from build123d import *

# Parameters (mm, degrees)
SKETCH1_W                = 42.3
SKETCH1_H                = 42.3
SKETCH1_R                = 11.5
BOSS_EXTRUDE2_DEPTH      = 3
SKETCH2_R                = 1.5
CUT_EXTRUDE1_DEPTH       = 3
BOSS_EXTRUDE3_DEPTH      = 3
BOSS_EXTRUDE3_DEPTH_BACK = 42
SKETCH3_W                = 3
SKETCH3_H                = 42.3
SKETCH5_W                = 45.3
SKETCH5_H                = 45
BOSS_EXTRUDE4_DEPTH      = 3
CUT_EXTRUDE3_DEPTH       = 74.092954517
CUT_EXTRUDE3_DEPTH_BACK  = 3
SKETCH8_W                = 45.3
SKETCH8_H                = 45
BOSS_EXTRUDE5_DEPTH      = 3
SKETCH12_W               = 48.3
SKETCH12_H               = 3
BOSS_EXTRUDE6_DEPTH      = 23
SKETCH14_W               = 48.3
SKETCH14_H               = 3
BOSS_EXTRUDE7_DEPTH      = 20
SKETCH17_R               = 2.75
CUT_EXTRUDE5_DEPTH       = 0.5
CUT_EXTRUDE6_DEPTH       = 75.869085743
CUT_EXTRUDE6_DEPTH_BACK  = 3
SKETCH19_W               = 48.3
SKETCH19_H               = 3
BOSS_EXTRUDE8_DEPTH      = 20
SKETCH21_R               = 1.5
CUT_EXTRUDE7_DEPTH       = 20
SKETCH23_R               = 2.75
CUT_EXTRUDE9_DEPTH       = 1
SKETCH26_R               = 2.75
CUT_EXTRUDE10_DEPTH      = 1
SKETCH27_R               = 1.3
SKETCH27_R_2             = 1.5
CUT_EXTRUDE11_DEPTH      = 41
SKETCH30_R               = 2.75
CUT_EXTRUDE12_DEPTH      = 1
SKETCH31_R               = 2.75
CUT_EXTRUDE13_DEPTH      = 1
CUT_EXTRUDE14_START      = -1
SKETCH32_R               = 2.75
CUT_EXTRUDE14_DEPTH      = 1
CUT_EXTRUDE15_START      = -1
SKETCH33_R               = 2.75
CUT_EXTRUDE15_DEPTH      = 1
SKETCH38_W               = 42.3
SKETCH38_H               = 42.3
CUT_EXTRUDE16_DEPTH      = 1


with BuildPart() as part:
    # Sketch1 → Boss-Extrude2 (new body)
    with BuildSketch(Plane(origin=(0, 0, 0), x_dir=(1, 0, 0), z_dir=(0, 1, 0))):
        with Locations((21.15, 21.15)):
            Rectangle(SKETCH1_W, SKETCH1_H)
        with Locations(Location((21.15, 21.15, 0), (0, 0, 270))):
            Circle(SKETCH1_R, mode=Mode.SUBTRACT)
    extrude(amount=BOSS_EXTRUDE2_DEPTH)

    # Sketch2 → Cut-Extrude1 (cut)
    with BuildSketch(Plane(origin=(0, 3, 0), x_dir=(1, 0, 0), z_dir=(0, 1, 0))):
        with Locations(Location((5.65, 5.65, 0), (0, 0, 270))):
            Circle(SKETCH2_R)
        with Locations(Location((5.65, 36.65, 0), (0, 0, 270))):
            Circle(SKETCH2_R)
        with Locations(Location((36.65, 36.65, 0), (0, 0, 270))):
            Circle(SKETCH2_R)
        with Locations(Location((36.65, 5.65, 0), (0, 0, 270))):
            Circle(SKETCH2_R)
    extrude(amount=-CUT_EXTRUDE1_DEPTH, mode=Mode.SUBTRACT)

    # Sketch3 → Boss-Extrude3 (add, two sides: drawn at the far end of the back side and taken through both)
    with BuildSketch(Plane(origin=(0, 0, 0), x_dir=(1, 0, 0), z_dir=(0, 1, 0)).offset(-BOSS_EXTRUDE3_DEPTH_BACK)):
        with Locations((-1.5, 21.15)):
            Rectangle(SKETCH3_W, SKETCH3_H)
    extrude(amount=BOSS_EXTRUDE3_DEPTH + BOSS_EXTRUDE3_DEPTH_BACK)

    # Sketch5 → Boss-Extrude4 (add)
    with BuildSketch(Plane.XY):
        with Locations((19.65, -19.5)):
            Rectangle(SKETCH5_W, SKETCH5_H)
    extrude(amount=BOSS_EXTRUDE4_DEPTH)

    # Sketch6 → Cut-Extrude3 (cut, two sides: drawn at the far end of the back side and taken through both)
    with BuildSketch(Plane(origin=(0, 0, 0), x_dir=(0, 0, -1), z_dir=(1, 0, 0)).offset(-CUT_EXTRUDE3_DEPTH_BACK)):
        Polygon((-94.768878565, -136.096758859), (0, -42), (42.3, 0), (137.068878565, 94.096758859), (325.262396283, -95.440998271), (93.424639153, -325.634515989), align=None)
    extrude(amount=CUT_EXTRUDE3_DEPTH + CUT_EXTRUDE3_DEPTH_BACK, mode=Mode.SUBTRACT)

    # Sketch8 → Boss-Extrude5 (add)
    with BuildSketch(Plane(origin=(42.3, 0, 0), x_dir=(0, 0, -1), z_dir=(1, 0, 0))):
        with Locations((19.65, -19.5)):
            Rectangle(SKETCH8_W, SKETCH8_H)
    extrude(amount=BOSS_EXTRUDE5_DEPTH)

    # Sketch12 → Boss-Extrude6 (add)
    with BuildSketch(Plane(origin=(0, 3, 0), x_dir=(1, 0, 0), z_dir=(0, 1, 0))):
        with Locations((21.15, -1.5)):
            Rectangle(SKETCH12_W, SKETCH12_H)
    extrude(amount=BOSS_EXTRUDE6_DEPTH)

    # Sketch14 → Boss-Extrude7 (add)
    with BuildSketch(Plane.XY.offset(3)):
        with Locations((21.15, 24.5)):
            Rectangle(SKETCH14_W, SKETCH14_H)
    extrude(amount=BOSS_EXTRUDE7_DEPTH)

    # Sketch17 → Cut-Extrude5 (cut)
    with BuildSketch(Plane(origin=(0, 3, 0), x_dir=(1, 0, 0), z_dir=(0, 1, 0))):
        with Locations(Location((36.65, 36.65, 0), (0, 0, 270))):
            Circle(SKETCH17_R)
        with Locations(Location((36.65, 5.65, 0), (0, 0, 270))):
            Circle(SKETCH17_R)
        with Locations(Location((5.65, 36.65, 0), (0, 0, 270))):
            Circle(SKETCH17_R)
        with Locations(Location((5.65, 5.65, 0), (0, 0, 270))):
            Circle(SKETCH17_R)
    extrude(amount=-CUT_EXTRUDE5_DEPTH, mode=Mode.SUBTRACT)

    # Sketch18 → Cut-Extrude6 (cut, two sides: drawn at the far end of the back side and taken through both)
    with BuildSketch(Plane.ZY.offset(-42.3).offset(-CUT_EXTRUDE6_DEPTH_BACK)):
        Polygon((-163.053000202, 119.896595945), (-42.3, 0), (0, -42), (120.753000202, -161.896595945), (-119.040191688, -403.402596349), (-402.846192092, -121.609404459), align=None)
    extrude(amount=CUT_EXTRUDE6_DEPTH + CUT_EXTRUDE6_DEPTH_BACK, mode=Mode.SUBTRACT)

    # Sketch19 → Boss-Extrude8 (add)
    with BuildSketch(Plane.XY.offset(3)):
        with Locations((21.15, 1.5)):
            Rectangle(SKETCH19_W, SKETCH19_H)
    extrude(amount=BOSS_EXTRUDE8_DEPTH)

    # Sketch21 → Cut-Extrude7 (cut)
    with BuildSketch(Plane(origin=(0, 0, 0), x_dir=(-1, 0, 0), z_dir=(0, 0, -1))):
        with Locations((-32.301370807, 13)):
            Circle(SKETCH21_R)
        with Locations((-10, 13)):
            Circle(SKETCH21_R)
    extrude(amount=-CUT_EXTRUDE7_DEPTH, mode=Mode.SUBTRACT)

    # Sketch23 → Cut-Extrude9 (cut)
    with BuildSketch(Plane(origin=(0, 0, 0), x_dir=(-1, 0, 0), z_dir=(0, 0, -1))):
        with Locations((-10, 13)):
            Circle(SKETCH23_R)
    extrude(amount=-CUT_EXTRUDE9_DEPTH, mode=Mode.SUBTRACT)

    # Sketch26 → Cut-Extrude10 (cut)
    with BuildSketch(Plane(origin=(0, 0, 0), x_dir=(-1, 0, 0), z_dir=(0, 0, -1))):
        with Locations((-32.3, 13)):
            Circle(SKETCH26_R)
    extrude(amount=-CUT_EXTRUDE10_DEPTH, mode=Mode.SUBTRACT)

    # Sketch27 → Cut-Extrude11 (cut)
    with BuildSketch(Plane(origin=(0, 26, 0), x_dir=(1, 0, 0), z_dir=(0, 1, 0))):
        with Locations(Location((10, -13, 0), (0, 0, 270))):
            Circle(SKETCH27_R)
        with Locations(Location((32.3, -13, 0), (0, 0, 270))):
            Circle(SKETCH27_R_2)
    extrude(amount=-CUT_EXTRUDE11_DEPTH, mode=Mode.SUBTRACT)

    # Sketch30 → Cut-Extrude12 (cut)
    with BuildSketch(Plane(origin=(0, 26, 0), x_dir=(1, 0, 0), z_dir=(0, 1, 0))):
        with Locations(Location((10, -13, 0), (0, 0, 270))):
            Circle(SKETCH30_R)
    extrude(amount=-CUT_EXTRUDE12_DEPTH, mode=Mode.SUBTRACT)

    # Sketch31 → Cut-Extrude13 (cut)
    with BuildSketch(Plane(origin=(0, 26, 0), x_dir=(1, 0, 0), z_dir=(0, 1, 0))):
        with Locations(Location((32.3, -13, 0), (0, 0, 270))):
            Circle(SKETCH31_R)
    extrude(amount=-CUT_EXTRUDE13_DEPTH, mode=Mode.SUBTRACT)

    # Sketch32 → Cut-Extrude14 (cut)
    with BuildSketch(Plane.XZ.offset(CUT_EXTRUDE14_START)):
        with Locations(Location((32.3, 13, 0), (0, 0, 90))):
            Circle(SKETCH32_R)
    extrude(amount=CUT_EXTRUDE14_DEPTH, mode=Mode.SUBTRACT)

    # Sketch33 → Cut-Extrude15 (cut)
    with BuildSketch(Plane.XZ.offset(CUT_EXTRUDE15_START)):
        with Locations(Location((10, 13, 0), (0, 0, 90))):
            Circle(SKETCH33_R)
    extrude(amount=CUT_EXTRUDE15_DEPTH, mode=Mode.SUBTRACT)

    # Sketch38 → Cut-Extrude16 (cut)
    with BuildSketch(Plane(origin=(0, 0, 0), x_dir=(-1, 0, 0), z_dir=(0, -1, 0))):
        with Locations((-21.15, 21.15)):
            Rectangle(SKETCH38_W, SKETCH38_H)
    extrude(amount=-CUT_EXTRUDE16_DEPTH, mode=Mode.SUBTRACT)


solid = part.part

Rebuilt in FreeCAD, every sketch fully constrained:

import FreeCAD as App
import Part
import Sketcher

V = App.Vector

doc = App.newDocument("Part")
body = doc.addObject("PartDesign::Body", "Body")

# Sketch on XZ plane
sketch1 = doc.addObject("Sketcher::SketchObject", "Sketch")
body.addObject(sketch1)
sketch1.AttachmentSupport = (doc.XZ_Plane, [""])
sketch1.MapMode = "FlatFace"
sketch1.addGeometry([
    Part.LineSegment(V(0, -42, 0), V(0, 0, 0)),  # 0
    Part.LineSegment(V(0, 0, 0), V(42, 0, 0)),  # 1
    Part.LineSegment(V(42, 0, 0), V(42, -42, 0)),  # 2
    Part.LineSegment(V(42, -42, 0), V(0, -42, 0)),  # 3
    Part.Circle(V(21, -21, 0), V(0, 0, 1), 12),  # 4
], False)
sketch1.addConstraint([
    Sketcher.Constraint("Coincident", 0, 2, 1, 1),
    Sketcher.Constraint("Coincident", 1, 2, 2, 1),
    Sketcher.Constraint("Coincident", 2, 2, 3, 1),
    Sketcher.Constraint("Coincident", 3, 2, 0, 1),
    Sketcher.Constraint("Vertical", 0),
    Sketcher.Constraint("Horizontal", 1),
    Sketcher.Constraint("Vertical", 2),
    Sketcher.Constraint("Horizontal", 3),
    Sketcher.Constraint("Coincident", 0, 2, -1, 1),
    Sketcher.Constraint("Equal", 3, 0),
    Sketcher.Constraint("Diameter", 4, 23.0),
    Sketcher.Constraint("DistanceX", 1, 1, 1, 2, 42.3),
    Sketcher.Constraint("DistanceX", -1, 1, 4, 3, 21.15),
    Sketcher.Constraint("DistanceY", 4, 3, -1, 1, 21.15),
])
pad1 = doc.addObject("PartDesign::Pad", "Pad")
body.addObject(pad1)
pad1.Profile = sketch1
pad1.Length = 3
pad1.Reversed = True

# Sketch on XZ plane
sketch2 = doc.addObject("Sketcher::SketchObject", "Sketch001")
body.addObject(sketch2)
sketch2.AttachmentSupport = (doc.XZ_Plane, [""])
sketch2.MapMode = "FlatFace"
sketch2.AttachmentOffset = App.Placement(V(0, 0, -3), App.Rotation())
sketch2.addGeometry([
    Part.Circle(V(5.7, -5.7, 0), V(0, 0, 1), 1.5),
    Part.Circle(V(5.7, -36.6, 0), V(0, 0, 1), 1.5),
    Part.Circle(V(36.6, -36.6, 0), V(0, 0, 1), 1.5),
    Part.Circle(V(36.6, -5.7, 0), V(0, 0, 1), 1.5),
], False)
sketch2.addConstraint([
    Sketcher.Constraint("Equal", 0, 1),
    Sketcher.Constraint("Equal", 1, 2),
    Sketcher.Constraint("Equal", 2, 3),
    Sketcher.Constraint("Horizontal", 1, 3, 2, 3),
    Sketcher.Constraint("Horizontal", 0, 3, 3, 3),
    Sketcher.Constraint("Vertical", 0, 3, 1, 3),
    Sketcher.Constraint("Vertical", 2, 3, 3, 3),
    Sketcher.Constraint("Diameter", 0, 3.0),
    Sketcher.Constraint("DistanceY", 1, 3, 0, 3, 31.0),
    Sketcher.Constraint("DistanceX", 1, 3, 2, 3, 31.0),
    Sketcher.Constraint("DistanceX", -1, 1, 0, 3, 5.65),
    Sketcher.Constraint("DistanceY", 0, 3, -1, 1, 5.65),
])
pocket1 = doc.addObject("PartDesign::Pocket", "Pocket")
body.addObject(pocket1)
pocket1.Profile = sketch2
pocket1.Length = 3
pocket1.Reversed = True

# Sketch on XZ plane
sketch3 = doc.addObject("Sketcher::SketchObject", "Sketch002")
body.addObject(sketch3)
sketch3.AttachmentSupport = (doc.XZ_Plane, [""])
sketch3.MapMode = "FlatFace"
sketch3.addGeometry([
    Part.LineSegment(V(-3, -42.3, 0), V(-3, 0, 0)),
    Part.LineSegment(V(-3, 0, 0), V(0, 0, 0)),
    Part.LineSegment(V(0, 0, 0), V(0, -42.3, 0)),
    Part.LineSegment(V(0, -42.3, 0), V(-3, -42.3, 0)),
], False)
sketch3.addConstraint([
    Sketcher.Constraint("Coincident", 0, 2, 1, 1),
    Sketcher.Constraint("Coincident", 1, 2, 2, 1),
    Sketcher.Constraint("Coincident", 2, 2, 3, 1),
    Sketcher.Constraint("Coincident", 3, 2, 0, 1),
    Sketcher.Constraint("Vertical", 0),
    Sketcher.Constraint("Horizontal", 1),
    Sketcher.Constraint("Vertical", 2),
    Sketcher.Constraint("Horizontal", 3),
    Sketcher.Constraint("Coincident", 1, 2, -1, 1),
    Sketcher.Constraint("DistanceX", 1, 1, 1, 2, 3.0),
    Sketcher.Constraint("DistanceY", 0, 1, 0, 2, 42.3),
])
pad2 = doc.addObject("PartDesign::Pad", "Pad001")
body.addObject(pad2)
pad2.Profile = sketch3
pad2.Type = "TwoLengths"
pad2.Length = 3
pad2.Length2 = 42
pad2.Reversed = True

# Sketch on XY plane
sketch4 = doc.addObject("Sketcher::SketchObject", "Sketch003")
body.addObject(sketch4)
sketch4.AttachmentSupport = (doc.XY_Plane, [""])
sketch4.MapMode = "FlatFace"
sketch4.addGeometry([
    Part.LineSegment(V(-3, 3, 0), V(-3, -42, 0)),
    Part.LineSegment(V(-3, -42, 0), V(42, -42, 0)),
    Part.LineSegment(V(42, -42, 0), V(42, 3, 0)),
    Part.LineSegment(V(42, 3, 0), V(-3, 3, 0)),
], False)
sketch4.addConstraint([
    Sketcher.Constraint("Coincident", 0, 2, 1, 1),
    Sketcher.Constraint("Coincident", 1, 2, 2, 1),
    Sketcher.Constraint("Coincident", 2, 2, 3, 1),
    Sketcher.Constraint("Coincident", 3, 2, 0, 1),
    Sketcher.Constraint("Vertical", 0),
    Sketcher.Constraint("Horizontal", 1),
    Sketcher.Constraint("Vertical", 2),
    Sketcher.Constraint("Horizontal", 3),
    Sketcher.Constraint("DistanceY", 0, 2, 0, 1, 45.0),
    Sketcher.Constraint("DistanceX", 1, 1, 1, 2, 45.3),
    Sketcher.Constraint("DistanceX", 0, 2, -1, 1, 3.0),
    Sketcher.Constraint("DistanceY", 0, 2, -1, 1, 42.0),
])
pad3 = doc.addObject("PartDesign::Pad", "Pad002")
body.addObject(pad3)
pad3.Profile = sketch4
pad3.Length = 3

# Sketch on YZ plane
sketch5 = doc.addObject("Sketcher::SketchObject", "Sketch004")
body.addObject(sketch5)
sketch5.AttachmentSupport = (doc.YZ_Plane, [""])
sketch5.MapMode = "FlatFace"
sketch5.addGeometry([
    Part.LineSegment(V(94, -137, 0), V(-136, 95, 0)),
    Part.LineSegment(V(-136, 95, 0), V(-326, -93, 0)),
    Part.LineSegment(V(-326, -93, 0), V(-95, -325, 0)),
    Part.LineSegment(V(-95, -325, 0), V(94, -137, 0)),
], False)
sketch5.addConstraint([
    Sketcher.Constraint("Coincident", 0, 2, 1, 1),
    Sketcher.Constraint("Coincident", 1, 2, 2, 1),
    Sketcher.Constraint("Coincident", 2, 2, 3, 1),
    Sketcher.Constraint("Coincident", 3, 2, 0, 1),
    Sketcher.Constraint("Perpendicular", 0, 1),
    Sketcher.Constraint("Perpendicular", 1, 2),
    Sketcher.Constraint("Perpendicular", 2, 3),
    Sketcher.Constraint("DistanceX", 2, 2, -1, 1, 95.440998),
    Sketcher.Constraint("DistanceX", 0, 2, -1, 1, 136.096759),
    Sketcher.Constraint("DistanceY", -1, 1, 0, 2, 94.768879),
    Sketcher.Constraint("DistanceY", 1, 2, -1, 1, 93.424639),
    Sketcher.Constraint("DistanceX", -1, 1, 3, 2, 94.096759),
])
pocket2 = doc.addObject("PartDesign::Pocket", "Pocket001")
body.addObject(pocket2)
pocket2.Profile = sketch5
pocket2.Type = "ThroughAll"
pocket2.Midplane = True

# Sketch on YZ plane
sketch6 = doc.addObject("Sketcher::SketchObject", "Sketch005")
body.addObject(sketch6)
sketch6.AttachmentSupport = (doc.YZ_Plane, [""])
sketch6.MapMode = "FlatFace"
sketch6.AttachmentOffset = App.Placement(V(0, 0, 42.3), App.Rotation())
sketch6.addGeometry([
    Part.LineSegment(V(3, 3, 0), V(-42, 3, 0)),
    Part.LineSegment(V(-42, 3, 0), V(-42, -42, 0)),
    Part.LineSegment(V(-42, -42, 0), V(3, -42, 0)),
    Part.LineSegment(V(3, -42, 0), V(3, 3, 0)),
], False)
sketch6.addConstraint([
    Sketcher.Constraint("Coincident", 0, 2, 1, 1),
    Sketcher.Constraint("Coincident", 1, 2, 2, 1),
    Sketcher.Constraint("Coincident", 2, 2, 3, 1),
    Sketcher.Constraint("Coincident", 3, 2, 0, 1),
    Sketcher.Constraint("Horizontal", 0),
    Sketcher.Constraint("Vertical", 1),
    Sketcher.Constraint("Horizontal", 2),
    Sketcher.Constraint("Vertical", 3),
    Sketcher.Constraint("DistanceX", 0, 2, 0, 1, 45.0),
    Sketcher.Constraint("DistanceY", 1, 2, 1, 1, 45.3),
    Sketcher.Constraint("DistanceX", 0, 2, -1, 1, 42.0),
    Sketcher.Constraint("DistanceY", -1, 1, 0, 2, 3.0),
])
pad4 = doc.addObject("PartDesign::Pad", "Pad003")
body.addObject(pad4)
pad4.Profile = sketch6
pad4.Length = 3

# Sketch on XZ plane
sketch7 = doc.addObject("Sketcher::SketchObject", "Sketch006")
body.addObject(sketch7)
sketch7.AttachmentSupport = (doc.XZ_Plane, [""])
sketch7.MapMode = "FlatFace"
sketch7.AttachmentOffset = App.Placement(V(0, 0, -3), App.Rotation())
sketch7.addGeometry([
    Part.LineSegment(V(-3, 0, 0), V(-3, 3, 0)),
    Part.LineSegment(V(-3, 3, 0), V(45.3, 3, 0)),
    Part.LineSegment(V(45.3, 3, 0), V(45.3, 0, 0)),
    Part.LineSegment(V(45.3, 0, 0), V(-3, 0, 0)),
], False)
sketch7.addConstraint([
    Sketcher.Constraint("Coincident", 0, 2, 1, 1),
    Sketcher.Constraint("Coincident", 1, 2, 2, 1),
    Sketcher.Constraint("Coincident", 2, 2, 3, 1),
    Sketcher.Constraint("Coincident", 3, 2, 0, 1),
    Sketcher.Constraint("Vertical", 0),
    Sketcher.Constraint("Horizontal", 1),
    Sketcher.Constraint("Vertical", 2),
    Sketcher.Constraint("Horizontal", 3),
    Sketcher.Constraint("PointOnObject", 2, 2, -1),
    Sketcher.Constraint("DistanceY", 0, 1, 0, 2, 3.0),
    Sketcher.Constraint("DistanceX", 1, 1, 1, 2, 48.3),
    Sketcher.Constraint("DistanceX", 0, 2, -1, 1, 3.0),
])
pad5 = doc.addObject("PartDesign::Pad", "Pad004")
body.addObject(pad5)
pad5.Profile = sketch7
pad5.Length = 23
pad5.Reversed = True

# Sketch on XY plane
sketch8 = doc.addObject("Sketcher::SketchObject", "Sketch007")
body.addObject(sketch8)
sketch8.AttachmentSupport = (doc.XY_Plane, [""])
sketch8.MapMode = "FlatFace"
sketch8.AttachmentOffset = App.Placement(V(0, 0, 3), App.Rotation())
sketch8.addGeometry([
    Part.LineSegment(V(-3, 26, 0), V(-3, 23, 0)),
    Part.LineSegment(V(-3, 23, 0), V(45.3, 23, 0)),
    Part.LineSegment(V(45.3, 23, 0), V(45.3, 26, 0)),
    Part.LineSegment(V(45.3, 26, 0), V(-3, 26, 0)),
], False)
sketch8.addConstraint([
    Sketcher.Constraint("Coincident", 0, 2, 1, 1),
    Sketcher.Constraint("Coincident", 1, 2, 2, 1),
    Sketcher.Constraint("Coincident", 2, 2, 3, 1),
    Sketcher.Constraint("Coincident", 3, 2, 0, 1),
    Sketcher.Constraint("Vertical", 0),
    Sketcher.Constraint("Horizontal", 1),
    Sketcher.Constraint("Vertical", 2),
    Sketcher.Constraint("Horizontal", 3),
    Sketcher.Constraint("DistanceY", 0, 2, 0, 1, 3.0),
    Sketcher.Constraint("DistanceX", 1, 1, 1, 2, 48.3),
    Sketcher.Constraint("DistanceX", 0, 2, -1, 1, 3.0),
    Sketcher.Constraint("DistanceY", -1, 1, 0, 2, 23.0),
])
pad6 = doc.addObject("PartDesign::Pad", "Pad005")
body.addObject(pad6)
pad6.Profile = sketch8
pad6.Length = 20

# Sketch on XZ plane
sketch9 = doc.addObject("Sketcher::SketchObject", "Sketch008")
body.addObject(sketch9)
sketch9.AttachmentSupport = (doc.XZ_Plane, [""])
sketch9.MapMode = "FlatFace"
sketch9.AttachmentOffset = App.Placement(V(0, 0, -3), App.Rotation())
sketch9.addGeometry([
    Part.Circle(V(36.6, -36.6, 0), V(0, 0, 1), 2.8),
    Part.Circle(V(36.6, -5.7, 0), V(0, 0, 1), 2.8),
    Part.Circle(V(5.7, -36.6, 0), V(0, 0, 1), 2.8),
    Part.Circle(V(5.7, -5.7, 0), V(0, 0, 1), 2.8),
], False)
sketch9.addConstraint([
    Sketcher.Constraint("Equal", 0, 1),
    Sketcher.Constraint("Equal", 1, 2),
    Sketcher.Constraint("Equal", 2, 3),
    Sketcher.Constraint("Horizontal", 0, 3, 2, 3),
    Sketcher.Constraint("Horizontal", 1, 3, 3, 3),
    Sketcher.Constraint("Vertical", 0, 3, 1, 3),
    Sketcher.Constraint("Vertical", 2, 3, 3, 3),
    Sketcher.Constraint("Diameter", 0, 5.5),
    Sketcher.Constraint("DistanceY", 0, 3, 1, 3, 31.0),
    Sketcher.Constraint("DistanceX", 2, 3, 0, 3, 31.0),
    Sketcher.Constraint("DistanceX", -1, 1, 0, 3, 36.65),
    Sketcher.Constraint("DistanceY", 0, 3, -1, 1, 36.65),
])
pocket3 = doc.addObject("PartDesign::Pocket", "Pocket002")
body.addObject(pocket3)
pocket3.Profile = sketch9
pocket3.Length = 0.5
pocket3.Reversed = True

# Sketch on YZ plane
sketch10 = doc.addObject("Sketcher::SketchObject", "Sketch009")
body.addObject(sketch10)
sketch10.AttachmentSupport = (doc.YZ_Plane, [""])
sketch10.MapMode = "FlatFace"
sketch10.AttachmentOffset = App.Placement(V(0, 0, 42.3), App.Rotation())
sketch10.addGeometry([
    Part.LineSegment(V(0, -42, 0), V(120, -163, 0)),  # 0
    Part.LineSegment(V(120, -163, 0), V(-122, -403, 0)),  # 1
    Part.LineSegment(V(-122, -403, 0), V(-403, -119, 0)),  # 2
    Part.LineSegment(V(-403, -119, 0), V(-162, 121, 0)),  # 3
    Part.LineSegment(V(-162, 121, 0), V(-42, 0, 0)),  # 4
    Part.LineSegment(V(-42, 0, 0), V(0, -42, 0)),  # 5
], False)
sketch10.addConstraint([
    Sketcher.Constraint("Coincident", 0, 2, 1, 1),
    Sketcher.Constraint("Coincident", 1, 2, 2, 1),
    Sketcher.Constraint("Coincident", 2, 2, 3, 1),
    Sketcher.Constraint("Coincident", 3, 2, 4, 1),
    Sketcher.Constraint("Coincident", 4, 2, 5, 1),
    Sketcher.Constraint("Coincident", 5, 2, 0, 1),
    Sketcher.Constraint("PointOnObject", 4, 2, -1),
    Sketcher.Constraint("PointOnObject", 5, 2, -2),
    Sketcher.Constraint("Perpendicular", 0, 1),
    Sketcher.Constraint("Perpendicular", 1, 2),
    Sketcher.Constraint("Perpendicular", 2, 3),
    Sketcher.Constraint("Perpendicular", 3, 4),
    Sketcher.Constraint("Parallel", 4, 5),
    Sketcher.Constraint("Equal", 0, 4),
    Sketcher.Constraint("DistanceX", 4, 2, -1, 1, 42.0),
    Sketcher.Constraint("DistanceY", 5, 2, -1, 1, 42.3),
    Sketcher.Constraint("DistanceY", 0, 2, -1, 1, 163.053),
    Sketcher.Constraint("DistanceX", 1, 2, 0, 2, 241.506),
])
pocket4 = doc.addObject("PartDesign::Pocket", "Pocket003")
body.addObject(pocket4)
pocket4.Profile = sketch10
pocket4.Type = "ThroughAll"
pocket4.Midplane = True

# Sketch on XY plane
sketch11 = doc.addObject("Sketcher::SketchObject", "Sketch010")
body.addObject(sketch11)
sketch11.AttachmentSupport = (doc.XY_Plane, [""])
sketch11.MapMode = "FlatFace"
sketch11.AttachmentOffset = App.Placement(V(0, 0, 3), App.Rotation())
sketch11.addGeometry([
    Part.LineSegment(V(-3, 3, 0), V(-3, 0, 0)),
    Part.LineSegment(V(-3, 0, 0), V(45.3, 0, 0)),
    Part.LineSegment(V(45.3, 0, 0), V(45.3, 3, 0)),
    Part.LineSegment(V(45.3, 3, 0), V(-3, 3, 0)),
], False)
sketch11.addConstraint([
    Sketcher.Constraint("Coincident", 0, 2, 1, 1),
    Sketcher.Constraint("Coincident", 1, 2, 2, 1),
    Sketcher.Constraint("Coincident", 2, 2, 3, 1),
    Sketcher.Constraint("Coincident", 3, 2, 0, 1),
    Sketcher.Constraint("Vertical", 0),
    Sketcher.Constraint("Horizontal", 1),
    Sketcher.Constraint("Vertical", 2),
    Sketcher.Constraint("Horizontal", 3),
    Sketcher.Constraint("PointOnObject", 0, 2, -1),
    Sketcher.Constraint("DistanceY", 0, 2, 0, 1, 3.0),
    Sketcher.Constraint("DistanceX", 1, 1, 1, 2, 48.3),
    Sketcher.Constraint("DistanceX", 0, 2, -1, 1, 3.0),
])
pad7 = doc.addObject("PartDesign::Pad", "Pad006")
body.addObject(pad7)
pad7.Profile = sketch11
pad7.Length = 20

# Sketch on XY plane
sketch12 = doc.addObject("Sketcher::SketchObject", "Sketch011")
body.addObject(sketch12)
sketch12.AttachmentSupport = (doc.XY_Plane, [""])
sketch12.MapMode = "FlatFace"
sketch12.addGeometry([
    Part.Circle(V(32.3, 13, 0), V(0, 0, 1), 1.5),
    Part.Circle(V(10, 13, 0), V(0, 0, 1), 1.5),
], False)
sketch12.addConstraint([
    Sketcher.Constraint("Equal", 0, 1),
    Sketcher.Constraint("Horizontal", 0, 3, 1, 3),
    Sketcher.Constraint("Diameter", 0, 3.0),
    Sketcher.Constraint("DistanceY", -1, 1, 0, 3, 13.0),
    Sketcher.Constraint("DistanceX", -1, 1, 1, 3, 10.0),
    Sketcher.Constraint("DistanceX", -1, 1, 0, 3, 32.301371),
])
pocket5 = doc.addObject("PartDesign::Pocket", "Pocket004")
body.addObject(pocket5)
pocket5.Profile = sketch12
pocket5.Length = 20
pocket5.Reversed = True

# Sketch on XY plane
sketch13 = doc.addObject("Sketcher::SketchObject", "Sketch012")
body.addObject(sketch13)
sketch13.AttachmentSupport = (doc.XY_Plane, [""])
sketch13.MapMode = "FlatFace"
sketch13.addGeometry(Part.Circle(V(10, 13, 0), V(0, 0, 1), 2.8), False)
sketch13.addConstraint([
    Sketcher.Constraint("Diameter", 0, 5.5),
    Sketcher.Constraint("DistanceX", -1, 1, 0, 3, 10.0),
    Sketcher.Constraint("DistanceY", -1, 1, 0, 3, 13.0),
])
pocket6 = doc.addObject("PartDesign::Pocket", "Pocket005")
body.addObject(pocket6)
pocket6.Profile = sketch13
pocket6.Length = 1
pocket6.Reversed = True

# Sketch on XY plane
sketch14 = doc.addObject("Sketcher::SketchObject", "Sketch013")
body.addObject(sketch14)
sketch14.AttachmentSupport = (doc.XY_Plane, [""])
sketch14.MapMode = "FlatFace"
sketch14.addGeometry(Part.Circle(V(32.3, 13, 0), V(0, 0, 1), 2.8), False)
sketch14.addConstraint([
    Sketcher.Constraint("Diameter", 0, 5.5),
    Sketcher.Constraint("DistanceY", -1, 1, 0, 3, 13.0),
    Sketcher.Constraint("DistanceX", -1, 1, 0, 3, 32.3),
])
pocket7 = doc.addObject("PartDesign::Pocket", "Pocket006")
body.addObject(pocket7)
pocket7.Profile = sketch14
pocket7.Length = 1
pocket7.Reversed = True

# Sketch on XZ plane
sketch15 = doc.addObject("Sketcher::SketchObject", "Sketch014")
body.addObject(sketch15)
sketch15.AttachmentSupport = (doc.XZ_Plane, [""])
sketch15.MapMode = "FlatFace"
sketch15.AttachmentOffset = App.Placement(V(0, 0, -26), App.Rotation())
sketch15.addGeometry([
    Part.Circle(V(10, 13, 0), V(0, 0, 1), 1.3),
    Part.Circle(V(32.3, 13, 0), V(0, 0, 1), 1.5),
], False)
sketch15.addConstraint([
    Sketcher.Constraint("Horizontal", 0, 3, 1, 3),
    Sketcher.Constraint("Diameter", 1, 3.0),
    Sketcher.Constraint("Diameter", 0, 2.6),
    Sketcher.Constraint("DistanceX", -1, 1, 0, 3, 10.0),
    Sketcher.Constraint("DistanceY", -1, 1, 0, 3, 13.0),
    Sketcher.Constraint("DistanceX", -1, 1, 1, 3, 32.3),
])
pocket8 = doc.addObject("PartDesign::Pocket", "Pocket007")
body.addObject(pocket8)
pocket8.Profile = sketch15
pocket8.Length = 41
pocket8.Reversed = True

# Sketch on XZ plane
sketch16 = doc.addObject("Sketcher::SketchObject", "Sketch015")
body.addObject(sketch16)
sketch16.AttachmentSupport = (doc.XZ_Plane, [""])
sketch16.MapMode = "FlatFace"
sketch16.AttachmentOffset = App.Placement(V(0, 0, -26), App.Rotation())
sketch16.addGeometry(Part.Circle(V(10, 13, 0), V(0, 0, 1), 2.8), False)
sketch16.addConstraint([
    Sketcher.Constraint("Diameter", 0, 5.5),
    Sketcher.Constraint("DistanceX", -1, 1, 0, 3, 10.0),
    Sketcher.Constraint("DistanceY", -1, 1, 0, 3, 13.0),
])
pocket9 = doc.addObject("PartDesign::Pocket", "Pocket008")
body.addObject(pocket9)
pocket9.Profile = sketch16
pocket9.Length = 1
pocket9.Reversed = True

# Sketch on XZ plane
sketch17 = doc.addObject("Sketcher::SketchObject", "Sketch016")
body.addObject(sketch17)
sketch17.AttachmentSupport = (doc.XZ_Plane, [""])
sketch17.MapMode = "FlatFace"
sketch17.AttachmentOffset = App.Placement(V(0, 0, -26), App.Rotation())
sketch17.addGeometry(Part.Circle(V(32.3, 13, 0), V(0, 0, 1), 2.8), False)
sketch17.addConstraint([
    Sketcher.Constraint("Diameter", 0, 5.5),
    Sketcher.Constraint("DistanceY", -1, 1, 0, 3, 13.0),
    Sketcher.Constraint("DistanceX", -1, 1, 0, 3, 32.3),
])
pocket10 = doc.addObject("PartDesign::Pocket", "Pocket009")
body.addObject(pocket10)
pocket10.Profile = sketch17
pocket10.Length = 1
pocket10.Reversed = True

# Sketch on XZ plane
sketch18 = doc.addObject("Sketcher::SketchObject", "Sketch017")
body.addObject(sketch18)
sketch18.AttachmentSupport = (doc.XZ_Plane, [""])
sketch18.MapMode = "FlatFace"
sketch18.AttachmentOffset = App.Placement(V(0, 0, -1), App.Rotation())
sketch18.addGeometry(Part.Circle(V(32.3, 13, 0), V(0, 0, 1), 2.8), False)
sketch18.addConstraint([
    Sketcher.Constraint("Diameter", 0, 5.5),
    Sketcher.Constraint("DistanceY", -1, 1, 0, 3, 13.0),
    Sketcher.Constraint("DistanceX", -1, 1, 0, 3, 32.3),
])
pocket11 = doc.addObject("PartDesign::Pocket", "Pocket010")
body.addObject(pocket11)
pocket11.Profile = sketch18
pocket11.Length = 1
pocket11.Reversed = True

# Sketch on XZ plane
sketch19 = doc.addObject("Sketcher::SketchObject", "Sketch018")
body.addObject(sketch19)
sketch19.AttachmentSupport = (doc.XZ_Plane, [""])
sketch19.MapMode = "FlatFace"
sketch19.AttachmentOffset = App.Placement(V(0, 0, -1), App.Rotation())
sketch19.addGeometry(Part.Circle(V(10, 13, 0), V(0, 0, 1), 2.8), False)
sketch19.addConstraint([
    Sketcher.Constraint("Diameter", 0, 5.5),
    Sketcher.Constraint("DistanceX", -1, 1, 0, 3, 10.0),
    Sketcher.Constraint("DistanceY", -1, 1, 0, 3, 13.0),
])
pocket12 = doc.addObject("PartDesign::Pocket", "Pocket011")
body.addObject(pocket12)
pocket12.Profile = sketch19
pocket12.Length = 1
pocket12.Reversed = True

# Sketch on XZ plane
sketch20 = doc.addObject("Sketcher::SketchObject", "Sketch019")
body.addObject(sketch20)
sketch20.AttachmentSupport = (doc.XZ_Plane, [""])
sketch20.MapMode = "FlatFace"
sketch20.addGeometry([
    Part.LineSegment(V(42, -42, 0), V(42, 0, 0)),
    Part.LineSegment(V(42, 0, 0), V(0, 0, 0)),
    Part.LineSegment(V(0, 0, 0), V(0, -42, 0)),
    Part.LineSegment(V(0, -42, 0), V(42, -42, 0)),
], False)
sketch20.addConstraint([
    Sketcher.Constraint("Coincident", 0, 2, 1, 1),
    Sketcher.Constraint("Coincident", 1, 2, 2, 1),
    Sketcher.Constraint("Coincident", 2, 2, 3, 1),
    Sketcher.Constraint("Coincident", 3, 2, 0, 1),
    Sketcher.Constraint("Vertical", 0),
    Sketcher.Constraint("Horizontal", 1),
    Sketcher.Constraint("Vertical", 2),
    Sketcher.Constraint("Horizontal", 3),
    Sketcher.Constraint("Coincident", 1, 2, -1, 1),
    Sketcher.Constraint("Equal", 3, 0),
    Sketcher.Constraint("DistanceX", 1, 2, 1, 1, 42.3),
])
pocket13 = doc.addObject("PartDesign::Pocket", "Pocket012")
body.addObject(pocket13)
pocket13.Profile = sketch20
pocket13.Length = 1

doc.recompute()
